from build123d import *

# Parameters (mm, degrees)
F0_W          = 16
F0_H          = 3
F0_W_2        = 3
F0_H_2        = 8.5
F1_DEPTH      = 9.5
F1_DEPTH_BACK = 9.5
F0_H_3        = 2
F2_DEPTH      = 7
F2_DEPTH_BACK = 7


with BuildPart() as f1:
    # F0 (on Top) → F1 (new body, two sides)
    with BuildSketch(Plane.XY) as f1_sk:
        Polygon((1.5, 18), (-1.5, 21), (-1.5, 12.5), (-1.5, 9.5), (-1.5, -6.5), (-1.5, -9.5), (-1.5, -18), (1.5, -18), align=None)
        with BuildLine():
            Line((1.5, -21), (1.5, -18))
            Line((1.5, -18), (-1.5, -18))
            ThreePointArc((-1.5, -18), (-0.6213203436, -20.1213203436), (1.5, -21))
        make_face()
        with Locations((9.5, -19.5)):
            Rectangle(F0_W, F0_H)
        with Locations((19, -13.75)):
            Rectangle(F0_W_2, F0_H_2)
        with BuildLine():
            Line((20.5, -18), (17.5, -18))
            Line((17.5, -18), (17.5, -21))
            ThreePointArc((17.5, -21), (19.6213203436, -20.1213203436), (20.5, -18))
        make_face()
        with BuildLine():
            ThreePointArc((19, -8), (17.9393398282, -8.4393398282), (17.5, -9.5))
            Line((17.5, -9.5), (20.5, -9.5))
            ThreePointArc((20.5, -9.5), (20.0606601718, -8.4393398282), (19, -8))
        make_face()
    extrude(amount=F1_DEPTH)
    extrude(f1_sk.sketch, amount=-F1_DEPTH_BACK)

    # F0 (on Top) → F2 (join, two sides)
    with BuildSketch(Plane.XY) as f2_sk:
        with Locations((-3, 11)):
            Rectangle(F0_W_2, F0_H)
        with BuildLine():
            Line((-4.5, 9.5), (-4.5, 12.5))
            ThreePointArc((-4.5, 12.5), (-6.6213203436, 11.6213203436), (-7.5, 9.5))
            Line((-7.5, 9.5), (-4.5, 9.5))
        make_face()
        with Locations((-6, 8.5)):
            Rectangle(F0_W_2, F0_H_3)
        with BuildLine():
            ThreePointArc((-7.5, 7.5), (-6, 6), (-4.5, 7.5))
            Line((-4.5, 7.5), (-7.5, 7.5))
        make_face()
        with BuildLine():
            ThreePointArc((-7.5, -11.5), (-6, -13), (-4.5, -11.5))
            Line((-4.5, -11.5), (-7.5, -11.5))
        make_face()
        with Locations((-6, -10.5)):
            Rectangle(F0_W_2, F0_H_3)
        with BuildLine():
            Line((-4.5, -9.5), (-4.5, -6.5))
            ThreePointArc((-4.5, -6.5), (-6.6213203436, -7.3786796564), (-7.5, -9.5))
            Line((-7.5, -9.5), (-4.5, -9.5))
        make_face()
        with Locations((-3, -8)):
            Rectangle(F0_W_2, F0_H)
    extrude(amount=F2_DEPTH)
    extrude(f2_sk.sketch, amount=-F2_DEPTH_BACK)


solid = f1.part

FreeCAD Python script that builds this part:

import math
import FreeCAD as App
import Part
import Sketcher
from FreeCAD import Vector

doc = App.newDocument("Part")
body = doc.addObject("PartDesign::Body", "Body")

# Sketch on XY plane
sketch1 = doc.addObject("Sketcher::SketchObject", "Sketch")
body.addObject(sketch1)
sketch1.AttachmentSupport = (doc.XY_Plane, [""])
sketch1.MapMode = "FlatFace"
sketch1.addGeometry(Part.LineSegment(Vector(1.5, 18, 0), Vector(-1.5, 21, 0)), False)
sketch1.addGeometry(Part.LineSegment(Vector(-1.5, 21, 0), Vector(-1.5, -18, 0)), False)
sketch1.addGeometry(Part.ArcOfCircle(Part.Circle(Vector(1.5, -18, 0), Vector(0, 0, 1), 3), math.radians(180), math.radians(270)), False)
sketch1.addGeometry(Part.LineSegment(Vector(1.5, -21, 0), Vector(17.5, -21, 0)), False)
sketch1.addGeometry(Part.ArcOfCircle(Part.Circle(Vector(17.5, -18, 0), Vector(0, 0, 1), 3), math.radians(-90), math.radians(0)), False)
sketch1.addGeometry(Part.LineSegment(Vector(20.5, -18, 0), Vector(20.5, -9.5, 0)), False)
sketch1.addGeometry(Part.ArcOfCircle(Part.Circle(Vector(19, -9.5, 0), Vector(0, 0, 1), 1.5), math.radians(0), math.radians(90)), False)
sketch1.addGeometry(Part.ArcOfCircle(Part.Circle(Vector(19, -9.5, 0), Vector(0, 0, 1), 1.5), math.radians(90), math.radians(180)), False)
sketch1.addGeometry(Part.LineSegment(Vector(17.5, -9.5, 0), Vector(17.5, -18, 0)), False)
sketch1.addGeometry(Part.LineSegment(Vector(17.5, -18, 0), Vector(1.5, -18, 0)), False)
sketch1.addGeometry(Part.LineSegment(Vector(1.5, -18, 0), Vector(1.5, 18, 0)), False)
sketch1.addConstraint(Sketcher.Constraint("Coincident", 0, 2, 1, 1))
sketch1.addConstraint(Sketcher.Constraint("Tangent", 1, 2, 2, 1))
sketch1.addConstraint(Sketcher.Constraint("Tangent", 2, 2, 3, 1))
sketch1.addConstraint(Sketcher.Constraint("Tangent", 3, 2, 4, 1))
sketch1.addConstraint(Sketcher.Constraint("Tangent", 4, 2, 5, 1))
sketch1.addConstraint(Sketcher.Constraint("Tangent", 5, 2, 6, 1))
sketch1.addConstraint(Sketcher.Constraint("Tangent", 6, 2, 7, 1))
sketch1.addConstraint(Sketcher.Constraint("Tangent", 7, 2, 8, 1))
sketch1.addConstraint(Sketcher.Constraint("Coincident", 8, 2, 9, 1))
sketch1.addConstraint(Sketcher.Constraint("Coincident", 9, 2, 10, 1))
sketch1.addConstraint(Sketcher.Constraint("Coincident", 10, 2, 0, 1))
sketch1.addConstraint(Sketcher.Constraint("Vertical", 1))
sketch1.addConstraint(Sketcher.Constraint("Horizontal", 3))
sketch1.addConstraint(Sketcher.Constraint("Vertical", 5))
sketch1.addConstraint(Sketcher.Constraint("Vertical", 8))
sketch1.addConstraint(Sketcher.Constraint("Horizontal", 9))
sketch1.addConstraint(Sketcher.Constraint("Vertical", 10))
sketch1.addConstraint(Sketcher.Constraint("Coincident", 8, 2, 4, 3))
sketch1.addConstraint(Sketcher.Constraint("Coincident", 9, 2, 2, 3))
sketch1.addConstraint(Sketcher.Constraint("Equal", 6, 7))
sketch1.addConstraint(Sketcher.Constraint("Symmetric", 0, 2, 2, 2, -1, 1))
sketch1.addConstraint(Sketcher.Constraint("Vertical", 7, 3, 6, 2))
sketch1.addConstraint(Sketcher.Constraint("Radius", 2, 3.0))
sketch1.addConstraint(Sketcher.Constraint("DistanceX", 3, 1, 3, 2, 16.0))
sketch1.addConstraint(Sketcher.Constraint("DistanceY", 1, 2, 1, 1, 39.0))
sketch1.addConstraint(Sketcher.Constraint("DistanceY", 10, 1, 10, 2, 36.0))
sketch1.addConstraint(Sketcher.Constraint("DistanceY", 5, 1, 5, 2, 8.5))
pad1 = doc.addObject("PartDesign::Pad", "Pad")
body.addObject(pad1)
pad1.Profile = sketch1
pad1.Type = "TwoLengths"
pad1.Length = 9.5
pad1.Length2 = 9.5

# Sketch on XY plane
sketch2 = doc.addObject("Sketcher::SketchObject", "Sketch001")
body.addObject(sketch2)
sketch2.AttachmentSupport = (doc.XY_Plane, [""])
sketch2.MapMode = "FlatFace"
sketch2.addGeometry(Part.LineSegment(Vector(-1.5, 9.5, 0), Vector(-1.5, 12.5, 0)), False)
sketch2.addGeometry(Part.LineSegment(Vector(-1.5, 12.5, 0), Vector(-4.5, 12.5, 0)), False)
sketch2.addGeometry(Part.ArcOfCircle(Part.Circle(Vector(-4.5, 9.5, 0), Vector(0, 0, 1), 3), math.radians(90), math.radians(180)), False)
sketch2.addGeometry(Part.LineSegment(Vector(-7.5, 9.5, 0), Vector(-7.5, 7.5, 0)), False)
sketch2.addGeometry(Part.ArcOfCircle(Part.Circle(Vector(-6, 7.5, 0), Vector(0, 0, 1), 1.5), math.radians(180), math.radians(360)), False)
sketch2.addGeometry(Part.LineSegment(Vector(-4.5, 7.5, 0), Vector(-4.5, 9.5, 0)), False)
sketch2.addGeometry(Part.LineSegment(Vector(-4.5, 9.5, 0), Vector(-1.5, 9.5, 0)), False)
sketch2.addGeometry(Part.ArcOfCircle(Part.Circle(Vector(-6, -11.5, 0), Vector(0, 0, 1), 1.5), math.radians(180), math.radians(360)), False)
sketch2.addGeometry(Part.LineSegment(Vector(-4.5, -11.5, 0), Vector(-4.5, -9.5, 0)), False)
sketch2.addGeometry(Part.LineSegment(Vector(-4.5, -9.5, 0), Vector(-1.5, -9.5, 0)), False)
sketch2.addGeometry(Part.LineSegment(Vector(-1.5, -9.5, 0), Vector(-1.5, -6.5, 0)), False)
sketch2.addGeometry(Part.LineSegment(Vector(-1.5, -6.5, 0), Vector(-4.5, -6.5, 0)), False)
sketch2.addGeometry(Part.ArcOfCircle(Part.Circle(Vector(-4.5, -9.5, 0), Vector(0, 0, 1), 3), math.radians(90), math.radians(180)), False)
sketch2.addGeometry(Part.LineSegment(Vector(-7.5, -9.5, 0), Vector(-7.5, -11.5, 0)), False)
sketch2.addConstraint(Sketcher.Constraint("Coincident", 0, 2, 1, 1))
sketch2.addConstraint(Sketcher.Constraint("Tangent", 1, 2, 2, 1))
sketch2.addConstraint(Sketcher.Constraint("Tangent", 2, 2, 3, 1))
sketch2.addConstraint(Sketcher.Constraint("Tangent", 3, 2, 4, 1))
sketch2.addConstraint(Sketcher.Constraint("Tangent", 4, 2, 5, 1))
sketch2.addConstraint(Sketcher.Constraint("Coincident", 5, 2, 6, 1))
sketch2.addConstraint(Sketcher.Constraint("Coincident", 6, 2, 0, 1))
sketch2.addConstraint(Sketcher.Constraint("Tangent", 7, 2, 8, 1))
sketch2.addConstraint(Sketcher.Constraint("Coincident", 8, 2, 9, 1))
sketch2.addConstraint(Sketcher.Constraint("Coincident", 9, 2, 10, 1))
sketch2.addConstraint(Sketcher.Constraint("Coincident", 10, 2, 11, 1))
sketch2.addConstraint(Sketcher.Constraint("Tangent", 11, 2, 12, 1))
sketch2.addConstraint(Sketcher.Constraint("Tangent", 12, 2, 13, 1))
sketch2.addConstraint(Sketcher.Constraint("Tangent", 13, 2, 7, 1))
sketch2.addConstraint(Sketcher.Constraint("Vertical", 0))
sketch2.addConstraint(Sketcher.Constraint("Horizontal", 1))
sketch2.addConstraint(Sketcher.Constraint("Vertical", 3))
sketch2.addConstraint(Sketcher.Constraint("Vertical", 5))
sketch2.addConstraint(Sketcher.Constraint("Horizontal", 6))
sketch2.addConstraint(Sketcher.Constraint("Vertical", 8))
sketch2.addConstraint(Sketcher.Constraint("Horizontal", 9))
sketch2.addConstraint(Sketcher.Constraint("Vertical", 10))
sketch2.addConstraint(Sketcher.Constraint("Horizontal", 11))
sketch2.addConstraint(Sketcher.Constraint("Vertical", 13))
sketch2.addConstraint(Sketcher.Constraint("Coincident", 5, 2, 2, 3))
sketch2.addConstraint(Sketcher.Constraint("Coincident", 8, 2, 12, 3))
sketch2.addConstraint(Sketcher.Constraint("Equal", 4, 7))
sketch2.addConstraint(Sketcher.Constraint("Symmetric", 2, 3, 12, 3, -1))
sketch2.addConstraint(Sketcher.Constraint("Vertical", 6, 2, 9, 2))
sketch2.addConstraint(Sketcher.Constraint("Equal", 11, 0))
sketch2.addConstraint(Sketcher.Constraint("Equal", 5, 8))
sketch2.addConstraint(Sketcher.Constraint("Radius", 2, 3.0))
sketch2.addConstraint(Sketcher.Constraint("DistanceY", 3, 2, 3, 1, 2.0))
sketch2.addConstraint(Sketcher.Constraint("DistanceX", 4, 3, -1, 1, 6.0))
sketch2.addConstraint(Sketcher.Constraint("DistanceY", 7, 3, 4, 3, 19.0))
pad2 = doc.addObject("PartDesign::Pad", "Pad001")
body.addObject(pad2)
pad2.Profile = sketch2
pad2.Type = "TwoLengths"
pad2.Length = 7
pad2.Length2 = 7

doc.recompute()
